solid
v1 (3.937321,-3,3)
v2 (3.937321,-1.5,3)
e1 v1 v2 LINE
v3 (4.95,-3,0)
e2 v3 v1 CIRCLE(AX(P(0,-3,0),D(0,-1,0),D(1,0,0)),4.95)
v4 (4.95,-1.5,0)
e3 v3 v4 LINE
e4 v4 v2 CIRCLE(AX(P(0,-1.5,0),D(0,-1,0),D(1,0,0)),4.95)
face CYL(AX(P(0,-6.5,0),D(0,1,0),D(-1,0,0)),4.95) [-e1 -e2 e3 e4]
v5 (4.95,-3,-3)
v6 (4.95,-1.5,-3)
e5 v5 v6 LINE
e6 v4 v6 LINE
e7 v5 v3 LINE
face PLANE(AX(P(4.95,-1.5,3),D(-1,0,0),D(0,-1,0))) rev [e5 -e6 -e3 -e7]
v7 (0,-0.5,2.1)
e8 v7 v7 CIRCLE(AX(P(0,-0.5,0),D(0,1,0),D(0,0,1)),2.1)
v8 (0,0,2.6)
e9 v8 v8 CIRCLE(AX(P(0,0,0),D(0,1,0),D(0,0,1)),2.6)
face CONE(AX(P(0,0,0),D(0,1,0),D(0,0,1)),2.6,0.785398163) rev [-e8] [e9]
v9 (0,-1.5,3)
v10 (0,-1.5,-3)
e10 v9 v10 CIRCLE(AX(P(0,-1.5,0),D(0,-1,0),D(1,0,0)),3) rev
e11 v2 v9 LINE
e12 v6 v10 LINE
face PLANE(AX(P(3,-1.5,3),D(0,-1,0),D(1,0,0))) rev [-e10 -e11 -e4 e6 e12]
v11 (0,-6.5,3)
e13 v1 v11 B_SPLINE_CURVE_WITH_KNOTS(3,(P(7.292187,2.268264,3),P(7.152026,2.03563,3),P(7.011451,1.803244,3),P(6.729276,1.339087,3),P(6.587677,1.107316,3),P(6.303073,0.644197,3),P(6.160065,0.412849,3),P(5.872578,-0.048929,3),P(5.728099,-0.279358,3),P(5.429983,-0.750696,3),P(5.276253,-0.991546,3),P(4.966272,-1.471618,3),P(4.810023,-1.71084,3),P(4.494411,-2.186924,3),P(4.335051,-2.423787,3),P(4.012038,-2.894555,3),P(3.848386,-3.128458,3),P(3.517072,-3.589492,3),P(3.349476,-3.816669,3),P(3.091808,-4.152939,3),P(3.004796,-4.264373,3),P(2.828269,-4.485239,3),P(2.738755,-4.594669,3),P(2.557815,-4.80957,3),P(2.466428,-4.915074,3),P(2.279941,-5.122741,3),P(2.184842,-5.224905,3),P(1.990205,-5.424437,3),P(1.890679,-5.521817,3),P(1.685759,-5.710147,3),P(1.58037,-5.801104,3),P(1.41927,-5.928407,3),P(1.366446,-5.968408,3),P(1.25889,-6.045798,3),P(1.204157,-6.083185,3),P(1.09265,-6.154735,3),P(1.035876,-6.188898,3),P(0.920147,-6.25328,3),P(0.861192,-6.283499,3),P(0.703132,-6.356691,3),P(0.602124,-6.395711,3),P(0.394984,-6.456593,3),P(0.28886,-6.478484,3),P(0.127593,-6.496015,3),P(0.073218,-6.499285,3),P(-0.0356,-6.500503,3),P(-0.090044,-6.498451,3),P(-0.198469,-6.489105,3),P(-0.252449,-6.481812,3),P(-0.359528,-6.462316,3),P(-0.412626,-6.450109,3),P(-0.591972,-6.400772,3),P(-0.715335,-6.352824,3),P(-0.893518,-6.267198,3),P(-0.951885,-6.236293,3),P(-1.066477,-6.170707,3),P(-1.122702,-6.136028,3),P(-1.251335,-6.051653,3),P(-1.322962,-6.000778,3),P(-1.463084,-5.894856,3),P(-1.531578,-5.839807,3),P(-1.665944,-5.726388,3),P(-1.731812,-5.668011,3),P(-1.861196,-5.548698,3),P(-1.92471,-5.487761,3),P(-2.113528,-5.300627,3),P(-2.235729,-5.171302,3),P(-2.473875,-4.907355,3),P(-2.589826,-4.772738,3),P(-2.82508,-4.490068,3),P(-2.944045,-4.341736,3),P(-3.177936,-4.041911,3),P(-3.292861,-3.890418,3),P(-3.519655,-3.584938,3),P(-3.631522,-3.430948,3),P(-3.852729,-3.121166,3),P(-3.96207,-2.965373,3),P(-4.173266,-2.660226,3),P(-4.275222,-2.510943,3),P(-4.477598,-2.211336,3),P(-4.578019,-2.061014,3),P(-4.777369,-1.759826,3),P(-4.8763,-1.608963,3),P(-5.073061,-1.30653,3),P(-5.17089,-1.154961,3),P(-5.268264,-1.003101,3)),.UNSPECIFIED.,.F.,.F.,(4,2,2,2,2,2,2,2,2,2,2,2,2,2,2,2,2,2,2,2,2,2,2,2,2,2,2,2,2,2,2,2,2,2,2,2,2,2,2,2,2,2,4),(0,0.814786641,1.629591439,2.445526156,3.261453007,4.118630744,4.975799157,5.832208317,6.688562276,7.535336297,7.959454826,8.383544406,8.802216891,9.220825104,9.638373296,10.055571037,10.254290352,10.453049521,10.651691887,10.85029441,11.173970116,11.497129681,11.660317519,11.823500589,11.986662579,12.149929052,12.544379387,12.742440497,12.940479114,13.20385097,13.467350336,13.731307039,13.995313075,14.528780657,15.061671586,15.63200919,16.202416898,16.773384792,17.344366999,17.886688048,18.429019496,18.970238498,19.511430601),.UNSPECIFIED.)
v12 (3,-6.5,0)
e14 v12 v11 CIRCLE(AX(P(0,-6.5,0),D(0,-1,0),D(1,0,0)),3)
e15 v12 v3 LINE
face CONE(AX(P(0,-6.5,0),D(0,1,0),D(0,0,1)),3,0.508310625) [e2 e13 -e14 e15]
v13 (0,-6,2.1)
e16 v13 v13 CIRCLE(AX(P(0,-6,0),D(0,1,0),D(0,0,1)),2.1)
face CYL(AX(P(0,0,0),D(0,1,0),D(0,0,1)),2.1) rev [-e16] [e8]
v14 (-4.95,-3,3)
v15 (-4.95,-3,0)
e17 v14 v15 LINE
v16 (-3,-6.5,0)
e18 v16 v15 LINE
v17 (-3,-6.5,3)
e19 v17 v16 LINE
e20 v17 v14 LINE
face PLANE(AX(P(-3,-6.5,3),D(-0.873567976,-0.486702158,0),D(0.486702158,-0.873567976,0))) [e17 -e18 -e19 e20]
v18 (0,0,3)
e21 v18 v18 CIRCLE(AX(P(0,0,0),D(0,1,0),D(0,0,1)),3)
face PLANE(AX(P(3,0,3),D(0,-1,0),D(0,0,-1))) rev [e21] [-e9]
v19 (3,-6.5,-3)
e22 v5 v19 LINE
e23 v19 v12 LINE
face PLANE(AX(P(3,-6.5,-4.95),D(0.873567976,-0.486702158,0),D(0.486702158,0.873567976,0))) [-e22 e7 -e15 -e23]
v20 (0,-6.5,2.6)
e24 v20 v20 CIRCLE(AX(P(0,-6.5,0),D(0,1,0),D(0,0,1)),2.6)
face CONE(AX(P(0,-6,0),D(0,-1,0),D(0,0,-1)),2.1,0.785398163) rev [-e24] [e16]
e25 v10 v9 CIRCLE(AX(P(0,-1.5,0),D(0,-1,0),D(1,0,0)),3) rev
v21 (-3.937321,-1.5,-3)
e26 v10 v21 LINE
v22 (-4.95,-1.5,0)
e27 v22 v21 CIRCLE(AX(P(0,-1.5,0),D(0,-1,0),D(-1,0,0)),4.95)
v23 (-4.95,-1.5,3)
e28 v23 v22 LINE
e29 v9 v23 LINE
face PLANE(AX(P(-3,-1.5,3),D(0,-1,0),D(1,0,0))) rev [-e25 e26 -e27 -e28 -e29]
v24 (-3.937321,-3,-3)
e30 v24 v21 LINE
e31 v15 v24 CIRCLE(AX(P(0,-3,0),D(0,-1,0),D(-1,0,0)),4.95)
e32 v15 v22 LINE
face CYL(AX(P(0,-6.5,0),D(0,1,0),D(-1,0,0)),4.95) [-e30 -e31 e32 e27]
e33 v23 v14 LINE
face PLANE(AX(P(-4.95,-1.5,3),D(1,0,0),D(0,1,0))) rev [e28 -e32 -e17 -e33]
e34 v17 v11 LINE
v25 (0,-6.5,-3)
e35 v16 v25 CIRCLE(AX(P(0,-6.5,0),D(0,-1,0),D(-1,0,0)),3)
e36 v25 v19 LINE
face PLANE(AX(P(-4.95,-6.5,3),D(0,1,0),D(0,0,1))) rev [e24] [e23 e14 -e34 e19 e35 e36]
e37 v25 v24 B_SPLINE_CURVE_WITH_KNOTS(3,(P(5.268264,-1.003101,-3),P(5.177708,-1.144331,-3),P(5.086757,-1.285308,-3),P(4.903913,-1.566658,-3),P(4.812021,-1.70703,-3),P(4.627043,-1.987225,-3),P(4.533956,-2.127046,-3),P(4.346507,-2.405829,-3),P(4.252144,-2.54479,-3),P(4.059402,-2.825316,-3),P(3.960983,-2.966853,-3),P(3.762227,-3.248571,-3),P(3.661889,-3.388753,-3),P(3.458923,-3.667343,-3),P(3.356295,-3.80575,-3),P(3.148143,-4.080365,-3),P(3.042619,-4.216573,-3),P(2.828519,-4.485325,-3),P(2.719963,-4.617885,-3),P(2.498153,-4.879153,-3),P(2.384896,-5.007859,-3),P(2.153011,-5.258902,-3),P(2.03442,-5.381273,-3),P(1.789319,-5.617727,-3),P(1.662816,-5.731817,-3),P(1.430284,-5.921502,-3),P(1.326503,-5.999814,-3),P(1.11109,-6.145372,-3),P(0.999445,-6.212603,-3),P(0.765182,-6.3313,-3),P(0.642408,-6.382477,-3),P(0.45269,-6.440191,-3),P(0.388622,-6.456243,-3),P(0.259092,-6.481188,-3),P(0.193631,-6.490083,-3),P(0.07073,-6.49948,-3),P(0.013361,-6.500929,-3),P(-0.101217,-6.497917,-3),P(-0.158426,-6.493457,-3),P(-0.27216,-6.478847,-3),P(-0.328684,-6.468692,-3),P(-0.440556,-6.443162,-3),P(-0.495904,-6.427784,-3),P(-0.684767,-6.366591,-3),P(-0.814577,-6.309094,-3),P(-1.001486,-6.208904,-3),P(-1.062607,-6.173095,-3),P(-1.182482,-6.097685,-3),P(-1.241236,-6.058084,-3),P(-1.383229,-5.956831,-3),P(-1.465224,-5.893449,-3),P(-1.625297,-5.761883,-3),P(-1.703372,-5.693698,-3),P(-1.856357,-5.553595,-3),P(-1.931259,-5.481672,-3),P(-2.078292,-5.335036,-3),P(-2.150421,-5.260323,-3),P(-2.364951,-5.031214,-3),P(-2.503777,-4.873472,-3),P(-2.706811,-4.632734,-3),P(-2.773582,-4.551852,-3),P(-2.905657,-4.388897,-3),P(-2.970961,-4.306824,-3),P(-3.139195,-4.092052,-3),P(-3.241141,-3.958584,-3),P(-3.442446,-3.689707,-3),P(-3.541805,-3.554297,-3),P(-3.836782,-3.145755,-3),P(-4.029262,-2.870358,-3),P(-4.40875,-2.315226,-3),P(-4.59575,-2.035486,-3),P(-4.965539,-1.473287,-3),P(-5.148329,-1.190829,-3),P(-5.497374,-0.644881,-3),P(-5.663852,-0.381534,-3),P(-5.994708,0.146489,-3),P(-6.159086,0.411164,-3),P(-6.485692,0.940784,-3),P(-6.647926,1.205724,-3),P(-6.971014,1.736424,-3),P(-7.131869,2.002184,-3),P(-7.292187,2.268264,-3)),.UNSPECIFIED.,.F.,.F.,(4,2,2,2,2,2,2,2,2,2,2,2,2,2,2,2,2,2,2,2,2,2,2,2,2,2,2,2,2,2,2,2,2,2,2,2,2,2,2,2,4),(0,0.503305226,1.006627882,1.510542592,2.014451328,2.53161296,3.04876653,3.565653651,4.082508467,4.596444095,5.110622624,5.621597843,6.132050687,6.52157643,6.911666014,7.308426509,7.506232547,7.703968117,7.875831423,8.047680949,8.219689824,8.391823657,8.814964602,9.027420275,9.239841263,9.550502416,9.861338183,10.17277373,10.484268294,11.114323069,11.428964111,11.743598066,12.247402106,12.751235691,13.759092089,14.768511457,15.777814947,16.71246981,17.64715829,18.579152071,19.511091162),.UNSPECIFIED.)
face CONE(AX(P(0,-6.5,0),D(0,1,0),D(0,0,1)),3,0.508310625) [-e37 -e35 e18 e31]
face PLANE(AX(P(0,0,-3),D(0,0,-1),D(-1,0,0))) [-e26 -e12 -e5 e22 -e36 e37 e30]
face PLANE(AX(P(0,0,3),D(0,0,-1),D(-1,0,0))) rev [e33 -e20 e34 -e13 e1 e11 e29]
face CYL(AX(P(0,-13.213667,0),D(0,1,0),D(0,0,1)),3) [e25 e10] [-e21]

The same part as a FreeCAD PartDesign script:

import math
import FreeCAD as App
import Part
import Sketcher

V = App.Vector
Q = App.Units.Quantity

doc = App.newDocument("Part")
body = doc.addObject("PartDesign::Body", "Body")

# Sketch on XY plane
sketch1 = body.newObject("Sketcher::SketchObject", "Sketch")
sketch1.AttachmentSupport = (doc.getObject("XY_Plane"), [""])
sketch1.MapMode = "FlatFace"
sketch1.addGeometry(Part.LineSegment(V(3, 0, 0), V(-3, 0, 0)), False)
sketch1.addGeometry(Part.LineSegment(V(-3, 0, 0), V(-3, -1.5, 0)), False)
sketch1.addGeometry(Part.LineSegment(V(-3, -1.5, 0), V(-4.95, -1.5, 0)), False)
sketch1.addGeometry(Part.LineSegment(V(-4.95, -1.5, 0), V(-4.95, -6.5, 0)), False)
sketch1.addGeometry(Part.LineSegment(V(-4.95, -6.5, 0), V(4.95, -6.5, 0)), False)
sketch1.addGeometry(Part.LineSegment(V(4.95, -6.5, 0), V(4.95, -1.5, 0)), False)
sketch1.addGeometry(Part.LineSegment(V(4.95, -1.5, 0), V(3, -1.5, 0)), False)
sketch1.addGeometry(Part.LineSegment(V(3, -1.5, 0), V(3, 0, 0)), False)
sketch1.addConstraint(Sketcher.Constraint("Coincident", 0, 2, 1, 1))
sketch1.addConstraint(Sketcher.Constraint("Coincident", 1, 2, 2, 1))
sketch1.addConstraint(Sketcher.Constraint("Coincident", 2, 2, 3, 1))
sketch1.addConstraint(Sketcher.Constraint("Coincident", 3, 2, 4, 1))
sketch1.addConstraint(Sketcher.Constraint("Coincident", 4, 2, 5, 1))
sketch1.addConstraint(Sketcher.Constraint("Coincident", 5, 2, 6, 1))
sketch1.addConstraint(Sketcher.Constraint("Coincident", 6, 2, 7, 1))
sketch1.addConstraint(Sketcher.Constraint("Coincident", 7, 2, 0, 1))
sketch1.addConstraint(Sketcher.Constraint("Horizontal", 0))
sketch1.addConstraint(Sketcher.Constraint("Vertical", 1))
sketch1.addConstraint(Sketcher.Constraint("Horizontal", 2))
sketch1.addConstraint(Sketcher.Constraint("Vertical", 3))
sketch1.addConstraint(Sketcher.Constraint("Horizontal", 4))
sketch1.addConstraint(Sketcher.Constraint("Vertical", 5))
sketch1.addConstraint(Sketcher.Constraint("Horizontal", 6))
sketch1.addConstraint(Sketcher.Constraint("Vertical", 7))
sketch1.addConstraint(Sketcher.Constraint("Symmetric", 0, 2, 7, 2, -1, 1))
sketch1.addConstraint(Sketcher.Constraint("Symmetric", 2, 2, 5, 2, -2))
sketch1.addConstraint(Sketcher.Constraint("DistanceX", 0, 2, 0, 1, Q("6 mm")))
sketch1.addConstraint(Sketcher.Constraint("DistanceY", 3, 2, 3, 1, Q("5 mm")))
sketch1.addConstraint(Sketcher.Constraint("DistanceX", 4, 1, 4, 2, Q("9.9 mm")))
sketch1.addConstraint(Sketcher.Constraint("DistanceY", 1, 2, 1, 1, Q("1.5 mm")))
pad1 = body.newObject("PartDesign::Pad", "Pad")
pad1.Profile = sketch1
pad1.Length = 6
pad1.Midplane = True

# Sketch on YZ plane
sketch2 = body.newObject("Sketcher::SketchObject", "Sketch001")
sketch2.AttachmentSupport = (doc.getObject("YZ_Plane"), [""])
sketch2.MapMode = "FlatFace"
sketch2.addGeometry(Part.LineSegment(V(-6.5, 0, 0), V(0, 0, 0)), False)
sketch2.addGeometry(Part.LineSegment(V(0, 0, 0), V(0, 2.6, 0)), False)
sketch2.addGeometry(Part.LineSegment(V(0, 2.6, 0), V(-0.5, 2.1, 0)), False)
sketch2.addGeometry(Part.LineSegment(V(-0.5, 2.1, 0), V(-6, 2.1, 0)), False)
sketch2.addGeometry(Part.LineSegment(V(-6, 2.1, 0), V(-6.5, 2.6, 0)), False)
sketch2.addGeometry(Part.LineSegment(V(-6.5, 2.6, 0), V(-6.5, 0, 0)), False)
sketch2.addConstraint(Sketcher.Constraint("Coincident", 0, 2, 1, 1))
sketch2.addConstraint(Sketcher.Constraint("Coincident", 1, 2, 2, 1))
sketch2.addConstraint(Sketcher.Constraint("Coincident", 2, 2, 3, 1))
sketch2.addConstraint(Sketcher.Constraint("Coincident", 3, 2, 4, 1))
sketch2.addConstraint(Sketcher.Constraint("Coincident", 4, 2, 5, 1))
sketch2.addConstraint(Sketcher.Constraint("Coincident", 5, 2, 0, 1))
sketch2.addConstraint(Sketcher.Constraint("Horizontal", 0))
sketch2.addConstraint(Sketcher.Constraint("Vertical", 1))
sketch2.addConstraint(Sketcher.Constraint("Horizontal", 3))
sketch2.addConstraint(Sketcher.Constraint("Vertical", 5))
sketch2.addConstraint(Sketcher.Constraint("Coincident", 0, 2, -1, 1))
sketch2.addConstraint(Sketcher.Constraint("Perpendicular", 2, 4))
sketch2.addConstraint(Sketcher.Constraint("Horizontal", 1, 2, 4, 2))
sketch2.addConstraint(Sketcher.Constraint("Equal", 2, 4))
sketch2.addConstraint(Sketcher.Constraint("DistanceX", 0, 1, 0, 2, Q("6.5 mm")))
sketch2.addConstraint(Sketcher.Constraint("DistanceX", 3, 2, 3, 1, Q("5.5 mm")))
sketch2.addConstraint(Sketcher.Constraint("DistanceY", 1, 1, 1, 2, Q("2.6 mm")))
groove = body.newObject("PartDesign::Groove", "Groove")
groove.Profile = sketch2
groove.ReferenceAxis = (sketch2, ["H_Axis"])
groove.Angle = 360

# Sketch on XZ plane
sketch3 = body.newObject("Sketcher::SketchObject", "Sketch002")
sketch3.AttachmentSupport = (doc.getObject("XZ_Plane"), [""])
sketch3.MapMode = "FlatFace"
sketch3.addGeometry(Part.LineSegment(V(-7.278, -5.328, 0), V(-7.278, 5.328, 0)), False)
sketch3.addGeometry(Part.LineSegment(V(-7.278, 5.328, 0), V(7.278, 5.328, 0)), False)
sketch3.addGeometry(Part.LineSegment(V(7.278, 5.328, 0), V(7.278, -5.328, 0)), False)
sketch3.addGeometry(Part.LineSegment(V(7.278, -5.328, 0), V(-7.278, -5.328, 0)), False)
sketch3.addGeometry(Part.Circle(V(0, 0, 0), V(0, 0, 1), 3), False)
sketch3.addConstraint(Sketcher.Constraint("Coincident", 0, 2, 1, 1))
sketch3.addConstraint(Sketcher.Constraint("Coincident", 1, 2, 2, 1))
sketch3.addConstraint(Sketcher.Constraint("Coincident", 2, 2, 3, 1))
sketch3.addConstraint(Sketcher.Constraint("Coincident", 3, 2, 0, 1))
sketch3.addConstraint(Sketcher.Constraint("Vertical", 0))
sketch3.addConstraint(Sketcher.Constraint("Horizontal", 1))
sketch3.addConstraint(Sketcher.Constraint("Vertical", 2))
sketch3.addConstraint(Sketcher.Constraint("Horizontal", 3))
sketch3.addConstraint(Sketcher.Constraint("Coincident", 4, 3, -1, 1))
sketch3.addConstraint(Sketcher.Constraint("Symmetric", 0, 2, 2, 2, -1, 1))
sketch3.addConstraint(Sketcher.Constraint("Diameter", 4, Q("6 mm")))
sketch3.addConstraint(Sketcher.Constraint("DistanceX", 1, 1, 1, 2, Q("14.556 mm")))
sketch3.addConstraint(Sketcher.Constraint("DistanceY", 0, 1, 0, 2, Q("10.656 mm")))
pocket1 = body.newObject("PartDesign::Pocket", "Pocket")
pocket1.Profile = sketch3
pocket1.Length = 1.5
pocket1.Reversed = True

# Sketch on XZ plane
sketch4 = body.newObject("Sketcher::SketchObject", "Sketch003")
sketch4.AttachmentSupport = (doc.getObject("XZ_Plane"), [""])
sketch4.MapMode = "FlatFace"
sketch4.AttachmentOffset = App.Placement(V(0, 0, 1.5), App.Rotation())
sketch4.addGeometry(Part.LineSegment(V(-4.95, -3, 0), V(-4.95, 0, 0)), False)
sketch4.addGeometry(Part.ArcOfCircle(Part.Circle(V(0, 0, 0), V(0, 0, 1), 4.95), math.radians(-180), math.radians(-142.694799)), False)
sketch4.addGeometry(Part.LineSegment(V(-3.937321, -3, 0), V(-4.95, -3, 0)), False)
sketch4.addGeometry(Part.LineSegment(V(4.95, 3, 0), V(4.95, 0, 0)), False)
sketch4.addGeometry(Part.ArcOfCircle(Part.Circle(V(0, 0, 0), V(0, 0, 1), 4.95), math.radians(0), math.radians(37.305201)), False)
sketch4.addGeometry(Part.LineSegment(V(3.937321, 3, 0), V(4.95, 3, 0)), False)
sketch4.addConstraint(Sketcher.Constraint("Tangent", 0, 2, 1, 1))
sketch4.addConstraint(Sketcher.Constraint("Coincident", 1, 2, 2, 1))
sketch4.addConstraint(Sketcher.Constraint("Coincident", 2, 2, 0, 1))
sketch4.addConstraint(Sketcher.Constraint("Tangent", 3, 2, 4, 1))
sketch4.addConstraint(Sketcher.Constraint("Coincident", 4, 2, 5, 1))
sketch4.addConstraint(Sketcher.Constraint("Coincident", 5, 2, 3, 1))
sketch4.addConstraint(Sketcher.Constraint("Vertical", 0))
sketch4.addConstraint(Sketcher.Constraint("Horizontal", 2))
sketch4.addConstraint(Sketcher.Constraint("Vertical", 3))
sketch4.addConstraint(Sketcher.Constraint("Horizontal", 5))
sketch4.addConstraint(Sketcher.Constraint("Coincident", 1, 3, -1, 1))
sketch4.addConstraint(Sketcher.Constraint("Coincident", 4, 3, -1, 1))
sketch4.addConstraint(Sketcher.Constraint("Equal", 1, 4))
sketch4.addConstraint(Sketcher.Constraint("Equal", 2, 5))
sketch4.addConstraint(Sketcher.Constraint("DistanceY", 0, 1, 0, 2, Q("3 mm")))
sketch4.addConstraint(Sketcher.Constraint("Radius", 1, Q("4.95 mm")))
pocket2 = body.newObject("PartDesign::Pocket", "Pocket001")
pocket2.Profile = sketch4
pocket2.Type = "ThroughAll"
pocket2.Reversed = True

# Sketch on XY plane
sketch5 = body.newObject("Sketcher::SketchObject", "Sketch004")
sketch5.AttachmentSupport = (doc.getObject("XY_Plane"), [""])
sketch5.MapMode = "FlatFace"
sketch5.AttachmentOffset = App.Placement(V(0, 0, 3), App.Rotation())
sketch5.addGeometry(Part.LineSegment(V(-4.95, -3, 0), V(-4.95, -6.5, 0)), False)
sketch5.addGeometry(Part.LineSegment(V(-4.95, -6.5, 0), V(-3, -6.5, 0)), False)
sketch5.addGeometry(Part.LineSegment(V(-3, -6.5, 0), V(-4.95, -3, 0)), False)
sketch5.addConstraint(Sketcher.Constraint("Coincident", 0, 2, 1, 1))
sketch5.addConstraint(Sketcher.Constraint("Coincident", 1, 2, 2, 1))
sketch5.addConstraint(Sketcher.Constraint("Coincident", 2, 2, 0, 1))
sketch5.addConstraint(Sketcher.Constraint("Vertical", 0))
sketch5.addConstraint(Sketcher.Constraint("Horizontal", 1))
sketch5.addConstraint(Sketcher.Constraint("DistanceY", 0, 2, 0, 1, Q("3.5 mm")))
sketch5.addConstraint(Sketcher.Constraint("DistanceX", 1, 2, -1, 1, Q("3 mm")))
sketch5.addConstraint(Sketcher.Constraint("DistanceY", 2, 2, -1, 1, Q("3 mm")))
sketch5.addConstraint(Sketcher.Constraint("DistanceX", 1, 1, 1, 2, Q("1.95 mm")))

# Sketch on XZ plane
sketch6 = body.newObject("Sketcher::SketchObject", "Sketch005")
sketch6.AttachmentSupport = (doc.getObject("XZ_Plane"), [""])
sketch6.MapMode = "FlatFace"
sketch6.AttachmentOffset = App.Placement(V(0, 0, 6.5), App.Rotation())
sketch6.addGeometry(Part.LineSegment(V(0, 4.95, 0), V(-4.95, 4.95, 0)), False)
sketch6.addGeometry(Part.LineSegment(V(-4.95, 4.95, 0), V(-4.95, 0, 0)), False)
sketch6.addGeometry(Part.ArcOfCircle(Part.Circle(V(0, 0, 0), V(0, 0, 1), 4.95), math.radians(180), math.radians(270)), False)
sketch6.addGeometry(Part.LineSegment(V(0, -4.95, 0), V(4.95, -4.95, 0)), False)
sketch6.addGeometry(Part.LineSegment(V(4.95, -4.95, 0), V(4.95, 0, 0)), False)
sketch6.addGeometry(Part.ArcOfCircle(Part.Circle(V(0, 0, 0), V(0, 0, 1), 4.95), math.radians(0), math.radians(90)), False)
sketch6.addConstraint(Sketcher.Constraint("Coincident", 0, 2, 1, 1))
sketch6.addConstraint(Sketcher.Constraint("Tangent", 1, 2, 2, 1))
sketch6.addConstraint(Sketcher.Constraint("Tangent", 2, 2, 3, 1))
sketch6.addConstraint(Sketcher.Constraint("Coincident", 3, 2, 4, 1))
sketch6.addConstraint(Sketcher.Constraint("Tangent", 4, 2, 5, 1))
sketch6.addConstraint(Sketcher.Constraint("Tangent", 5, 2, 0, 1))
sketch6.addConstraint(Sketcher.Constraint("Horizontal", 0))
sketch6.addConstraint(Sketcher.Constraint("Vertical", 1))
sketch6.addConstraint(Sketcher.Constraint("Horizontal", 3))
sketch6.addConstraint(Sketcher.Constraint("Vertical", 4))
sketch6.addConstraint(Sketcher.Constraint("Coincident", 2, 3, -1, 1))
sketch6.addConstraint(Sketcher.Constraint("Coincident", 5, 3, -1, 1))
sketch6.addConstraint(Sketcher.Constraint("Equal", 2, 5))
sketch6.addConstraint(Sketcher.Constraint("Radius", 2, Q("4.95 mm")))
doc.recompute()

subtractivepipe = body.newObject("PartDesign::SubtractivePipe", "SubtractivePipe")
subtractivepipe.Profile = sketch5
subtractivepipe.Spine = (sketch6, ["Edge1", "Edge2", "Edge3", "Edge4", "Edge5", "Edge6"])
subtractivepipe.Transition = "Right corner"

doc.recompute()
